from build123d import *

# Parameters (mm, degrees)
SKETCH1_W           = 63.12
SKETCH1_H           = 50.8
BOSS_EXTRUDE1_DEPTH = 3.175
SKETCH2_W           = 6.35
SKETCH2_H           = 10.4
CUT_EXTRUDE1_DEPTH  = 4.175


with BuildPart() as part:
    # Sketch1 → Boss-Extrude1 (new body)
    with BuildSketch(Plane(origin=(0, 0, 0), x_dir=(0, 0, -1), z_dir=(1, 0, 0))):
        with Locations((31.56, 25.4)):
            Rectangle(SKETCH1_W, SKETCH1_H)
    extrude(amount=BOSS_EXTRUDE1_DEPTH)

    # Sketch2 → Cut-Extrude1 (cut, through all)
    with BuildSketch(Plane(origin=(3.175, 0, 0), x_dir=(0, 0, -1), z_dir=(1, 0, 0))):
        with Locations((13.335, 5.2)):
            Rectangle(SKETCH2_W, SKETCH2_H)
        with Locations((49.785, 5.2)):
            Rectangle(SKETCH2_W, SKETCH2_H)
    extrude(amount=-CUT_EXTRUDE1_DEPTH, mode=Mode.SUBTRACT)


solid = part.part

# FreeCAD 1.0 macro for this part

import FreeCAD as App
import Part
import Sketcher
from FreeCAD import Vector
Q = App.Units.Quantity

doc = App.newDocument("Part")
body = doc.addObject("PartDesign::Body", "Body")

# Sketch on YZ plane
sketch1 = body.newObject("Sketcher::SketchObject", "Sketch")
sketch1.AttachmentSupport = (doc.getObject("YZ_Plane"), [""])
sketch1.MapMode = "FlatFace"
sketch1.addGeometry([
    Part.LineSegment(Vector(51, 0, 0), Vector(0, 0, 0)),
    Part.LineSegment(Vector(0, 0, 0), Vector(0, -63, 0)),
    Part.LineSegment(Vector(0, -63, 0), Vector(51, -63, 0)),
    Part.LineSegment(Vector(51, -63, 0), Vector(51, 0, 0)),
], False)
sketch1.addConstraint([
    Sketcher.Constraint("Coincident", 0, 2, 1, 1),
    Sketcher.Constraint("Coincident", 1, 2, 2, 1),
    Sketcher.Constraint("Coincident", 2, 2, 3, 1),
    Sketcher.Constraint("Coincident", 3, 2, 0, 1),
    Sketcher.Constraint("Horizontal", 0),
    Sketcher.Constraint("Vertical", 1),
    Sketcher.Constraint("Horizontal", 2),
    Sketcher.Constraint("Vertical", 3),
    Sketcher.Constraint("Coincident", 0, 2, -1, 1),
    Sketcher.Constraint("DistanceX", 0, 2, 0, 1, Q("2 in")),
    Sketcher.Constraint("DistanceY", 1, 2, 1, 1, Q("63.12 mm")),
])
pad1 = body.newObject("PartDesign::Pad", "Pad")
pad1.Profile = sketch1
pad1.Length = Q("0.125 in")

# Sketch on YZ plane
sketch2 = body.newObject("Sketcher::SketchObject", "Sketch001")
sketch2.AttachmentSupport = (doc.getObject("YZ_Plane"), [""])
sketch2.MapMode = "FlatFace"
sketch2.AttachmentOffset = App.Placement(Vector(0, 0, 0.125 * 25.4), App.Rotation())
sketch2.addGeometry([
    Part.LineSegment(Vector(10, -10, 0), Vector(0, -10, 0)),  # 0
    Part.LineSegment(Vector(0, -10, 0), Vector(0, -17, 0)),  # 1
    Part.LineSegment(Vector(0, -17, 0), Vector(10, -17, 0)),  # 2
    Part.LineSegment(Vector(10, -17, 0), Vector(10, -10, 0)),  # 3
    Part.LineSegment(Vector(10, -47, 0), Vector(0, -47, 0)),  # 4
    Part.LineSegment(Vector(0, -47, 0), Vector(0, -53, 0)),  # 5
    Part.LineSegment(Vector(0, -53, 0), Vector(10, -53, 0)),  # 6
    Part.LineSegment(Vector(10, -53, 0), Vector(10, -47, 0)),  # 7
], False)
sketch2.addConstraint([
    Sketcher.Constraint("Coincident", 0, 2, 1, 1),
    Sketcher.Constraint("Coincident", 1, 2, 2, 1),
    Sketcher.Constraint("Coincident", 2, 2, 3, 1),
    Sketcher.Constraint("Coincident", 3, 2, 0, 1),
    Sketcher.Constraint("Coincident", 4, 2, 5, 1),
    Sketcher.Constraint("Coincident", 5, 2, 6, 1),
    Sketcher.Constraint("Coincident", 6, 2, 7, 1),
    Sketcher.Constraint("Coincident", 7, 2, 4, 1),
    Sketcher.Constraint("Horizontal", 0),
    Sketcher.Constraint("Vertical", 1),
    Sketcher.Constraint("Horizontal", 2),
    Sketcher.Constraint("Vertical", 3),
    Sketcher.Constraint("Horizontal", 4),
    Sketcher.Constraint("Vertical", 5),
    Sketcher.Constraint("Horizontal", 6),
    Sketcher.Constraint("Vertical", 7),
    Sketcher.Constraint("PointOnObject", 0, 2, -2),
    Sketcher.Constraint("PointOnObject", 4, 2, -2),
    Sketcher.Constraint("Vertical", 3, 2, 6, 2),
    Sketcher.Constraint("Equal", 3, 5),
    Sketcher.Constraint("DistanceY", 1, 2, 1, 1, Q("0.25 in")),
    Sketcher.Constraint("DistanceY", 0, 2, -1, 1, Q("0.4 in")),
    Sketcher.Constraint("DistanceX", 0, 2, 0, 1, Q("10.4 mm")),
    Sketcher.Constraint("DistanceY", 4, 2, -1, 1, Q("46.61 mm")),
])
pocket1 = body.newObject("PartDesign::Pocket", "Pocket")
pocket1.Profile = sketch2
pocket1.Type = "ThroughAll"

doc.recompute()
